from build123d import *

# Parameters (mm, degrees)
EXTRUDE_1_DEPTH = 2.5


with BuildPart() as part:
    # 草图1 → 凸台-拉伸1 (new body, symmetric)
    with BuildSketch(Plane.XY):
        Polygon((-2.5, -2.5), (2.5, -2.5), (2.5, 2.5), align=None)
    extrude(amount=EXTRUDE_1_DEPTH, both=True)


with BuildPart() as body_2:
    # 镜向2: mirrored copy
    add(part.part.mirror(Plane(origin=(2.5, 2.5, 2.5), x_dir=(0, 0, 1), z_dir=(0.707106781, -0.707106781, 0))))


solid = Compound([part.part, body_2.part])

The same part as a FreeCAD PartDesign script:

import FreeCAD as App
import Part
import Sketcher

doc = App.newDocument("Part")
body = doc.addObject("PartDesign::Body", "Body")

# Sketch on XY plane
sketch1 = body.newObject("Sketcher::SketchObject", "Sketch")
sketch1.AttachmentSupport = (doc.getObject("XY_Plane"), [""])
sketch1.MapMode = "FlatFace"
sketch1.addGeometry([
    Part.LineSegment(App.Vector(-2.5, -2.5, 0), App.Vector(2.5, -2.5, 0)),
    Part.LineSegment(App.Vector(2.5, -2.5, 0), App.Vector(2.5, 2.5, 0)),
    Part.LineSegment(App.Vector(2.5, 2.5, 0), App.Vector(-2.5, -2.5, 0)),
], False)
sketch1.addConstraint([
    Sketcher.Constraint("Coincident", 0, 2, 1, 1),
    Sketcher.Constraint("Coincident", 1, 2, 2, 1),
    Sketcher.Constraint("Coincident", 2, 2, 0, 1),
    Sketcher.Constraint("Horizontal", 0),
    Sketcher.Constraint("Vertical", 1),
    Sketcher.Constraint("Symmetric", 1, 2, 2, 2, -1, 1),
    Sketcher.Constraint("Equal", 0, 1),
    Sketcher.Constraint("DistanceX", 0, 1, 0, 2, 5.0),
])
pad1 = body.newObject("PartDesign::Pad", "Pad")
pad1.Profile = sketch1
pad1.Length = 5
pad1.Midplane = True
body2 = doc.addObject("PartDesign::Body", "Body001")
doc.recompute()

mirroring = doc.addObject("Part::Mirroring", "Mirroring")
mirroring.Source = body
mirroring.Base = App.Vector(2.5, 2.5, 2.5)
mirroring.Normal = App.Vector(0.707106781, -0.707106781, 0)
body2.BaseFeature = mirroring
doc.recompute()
mirroring.Visibility = False

doc.recompute()
